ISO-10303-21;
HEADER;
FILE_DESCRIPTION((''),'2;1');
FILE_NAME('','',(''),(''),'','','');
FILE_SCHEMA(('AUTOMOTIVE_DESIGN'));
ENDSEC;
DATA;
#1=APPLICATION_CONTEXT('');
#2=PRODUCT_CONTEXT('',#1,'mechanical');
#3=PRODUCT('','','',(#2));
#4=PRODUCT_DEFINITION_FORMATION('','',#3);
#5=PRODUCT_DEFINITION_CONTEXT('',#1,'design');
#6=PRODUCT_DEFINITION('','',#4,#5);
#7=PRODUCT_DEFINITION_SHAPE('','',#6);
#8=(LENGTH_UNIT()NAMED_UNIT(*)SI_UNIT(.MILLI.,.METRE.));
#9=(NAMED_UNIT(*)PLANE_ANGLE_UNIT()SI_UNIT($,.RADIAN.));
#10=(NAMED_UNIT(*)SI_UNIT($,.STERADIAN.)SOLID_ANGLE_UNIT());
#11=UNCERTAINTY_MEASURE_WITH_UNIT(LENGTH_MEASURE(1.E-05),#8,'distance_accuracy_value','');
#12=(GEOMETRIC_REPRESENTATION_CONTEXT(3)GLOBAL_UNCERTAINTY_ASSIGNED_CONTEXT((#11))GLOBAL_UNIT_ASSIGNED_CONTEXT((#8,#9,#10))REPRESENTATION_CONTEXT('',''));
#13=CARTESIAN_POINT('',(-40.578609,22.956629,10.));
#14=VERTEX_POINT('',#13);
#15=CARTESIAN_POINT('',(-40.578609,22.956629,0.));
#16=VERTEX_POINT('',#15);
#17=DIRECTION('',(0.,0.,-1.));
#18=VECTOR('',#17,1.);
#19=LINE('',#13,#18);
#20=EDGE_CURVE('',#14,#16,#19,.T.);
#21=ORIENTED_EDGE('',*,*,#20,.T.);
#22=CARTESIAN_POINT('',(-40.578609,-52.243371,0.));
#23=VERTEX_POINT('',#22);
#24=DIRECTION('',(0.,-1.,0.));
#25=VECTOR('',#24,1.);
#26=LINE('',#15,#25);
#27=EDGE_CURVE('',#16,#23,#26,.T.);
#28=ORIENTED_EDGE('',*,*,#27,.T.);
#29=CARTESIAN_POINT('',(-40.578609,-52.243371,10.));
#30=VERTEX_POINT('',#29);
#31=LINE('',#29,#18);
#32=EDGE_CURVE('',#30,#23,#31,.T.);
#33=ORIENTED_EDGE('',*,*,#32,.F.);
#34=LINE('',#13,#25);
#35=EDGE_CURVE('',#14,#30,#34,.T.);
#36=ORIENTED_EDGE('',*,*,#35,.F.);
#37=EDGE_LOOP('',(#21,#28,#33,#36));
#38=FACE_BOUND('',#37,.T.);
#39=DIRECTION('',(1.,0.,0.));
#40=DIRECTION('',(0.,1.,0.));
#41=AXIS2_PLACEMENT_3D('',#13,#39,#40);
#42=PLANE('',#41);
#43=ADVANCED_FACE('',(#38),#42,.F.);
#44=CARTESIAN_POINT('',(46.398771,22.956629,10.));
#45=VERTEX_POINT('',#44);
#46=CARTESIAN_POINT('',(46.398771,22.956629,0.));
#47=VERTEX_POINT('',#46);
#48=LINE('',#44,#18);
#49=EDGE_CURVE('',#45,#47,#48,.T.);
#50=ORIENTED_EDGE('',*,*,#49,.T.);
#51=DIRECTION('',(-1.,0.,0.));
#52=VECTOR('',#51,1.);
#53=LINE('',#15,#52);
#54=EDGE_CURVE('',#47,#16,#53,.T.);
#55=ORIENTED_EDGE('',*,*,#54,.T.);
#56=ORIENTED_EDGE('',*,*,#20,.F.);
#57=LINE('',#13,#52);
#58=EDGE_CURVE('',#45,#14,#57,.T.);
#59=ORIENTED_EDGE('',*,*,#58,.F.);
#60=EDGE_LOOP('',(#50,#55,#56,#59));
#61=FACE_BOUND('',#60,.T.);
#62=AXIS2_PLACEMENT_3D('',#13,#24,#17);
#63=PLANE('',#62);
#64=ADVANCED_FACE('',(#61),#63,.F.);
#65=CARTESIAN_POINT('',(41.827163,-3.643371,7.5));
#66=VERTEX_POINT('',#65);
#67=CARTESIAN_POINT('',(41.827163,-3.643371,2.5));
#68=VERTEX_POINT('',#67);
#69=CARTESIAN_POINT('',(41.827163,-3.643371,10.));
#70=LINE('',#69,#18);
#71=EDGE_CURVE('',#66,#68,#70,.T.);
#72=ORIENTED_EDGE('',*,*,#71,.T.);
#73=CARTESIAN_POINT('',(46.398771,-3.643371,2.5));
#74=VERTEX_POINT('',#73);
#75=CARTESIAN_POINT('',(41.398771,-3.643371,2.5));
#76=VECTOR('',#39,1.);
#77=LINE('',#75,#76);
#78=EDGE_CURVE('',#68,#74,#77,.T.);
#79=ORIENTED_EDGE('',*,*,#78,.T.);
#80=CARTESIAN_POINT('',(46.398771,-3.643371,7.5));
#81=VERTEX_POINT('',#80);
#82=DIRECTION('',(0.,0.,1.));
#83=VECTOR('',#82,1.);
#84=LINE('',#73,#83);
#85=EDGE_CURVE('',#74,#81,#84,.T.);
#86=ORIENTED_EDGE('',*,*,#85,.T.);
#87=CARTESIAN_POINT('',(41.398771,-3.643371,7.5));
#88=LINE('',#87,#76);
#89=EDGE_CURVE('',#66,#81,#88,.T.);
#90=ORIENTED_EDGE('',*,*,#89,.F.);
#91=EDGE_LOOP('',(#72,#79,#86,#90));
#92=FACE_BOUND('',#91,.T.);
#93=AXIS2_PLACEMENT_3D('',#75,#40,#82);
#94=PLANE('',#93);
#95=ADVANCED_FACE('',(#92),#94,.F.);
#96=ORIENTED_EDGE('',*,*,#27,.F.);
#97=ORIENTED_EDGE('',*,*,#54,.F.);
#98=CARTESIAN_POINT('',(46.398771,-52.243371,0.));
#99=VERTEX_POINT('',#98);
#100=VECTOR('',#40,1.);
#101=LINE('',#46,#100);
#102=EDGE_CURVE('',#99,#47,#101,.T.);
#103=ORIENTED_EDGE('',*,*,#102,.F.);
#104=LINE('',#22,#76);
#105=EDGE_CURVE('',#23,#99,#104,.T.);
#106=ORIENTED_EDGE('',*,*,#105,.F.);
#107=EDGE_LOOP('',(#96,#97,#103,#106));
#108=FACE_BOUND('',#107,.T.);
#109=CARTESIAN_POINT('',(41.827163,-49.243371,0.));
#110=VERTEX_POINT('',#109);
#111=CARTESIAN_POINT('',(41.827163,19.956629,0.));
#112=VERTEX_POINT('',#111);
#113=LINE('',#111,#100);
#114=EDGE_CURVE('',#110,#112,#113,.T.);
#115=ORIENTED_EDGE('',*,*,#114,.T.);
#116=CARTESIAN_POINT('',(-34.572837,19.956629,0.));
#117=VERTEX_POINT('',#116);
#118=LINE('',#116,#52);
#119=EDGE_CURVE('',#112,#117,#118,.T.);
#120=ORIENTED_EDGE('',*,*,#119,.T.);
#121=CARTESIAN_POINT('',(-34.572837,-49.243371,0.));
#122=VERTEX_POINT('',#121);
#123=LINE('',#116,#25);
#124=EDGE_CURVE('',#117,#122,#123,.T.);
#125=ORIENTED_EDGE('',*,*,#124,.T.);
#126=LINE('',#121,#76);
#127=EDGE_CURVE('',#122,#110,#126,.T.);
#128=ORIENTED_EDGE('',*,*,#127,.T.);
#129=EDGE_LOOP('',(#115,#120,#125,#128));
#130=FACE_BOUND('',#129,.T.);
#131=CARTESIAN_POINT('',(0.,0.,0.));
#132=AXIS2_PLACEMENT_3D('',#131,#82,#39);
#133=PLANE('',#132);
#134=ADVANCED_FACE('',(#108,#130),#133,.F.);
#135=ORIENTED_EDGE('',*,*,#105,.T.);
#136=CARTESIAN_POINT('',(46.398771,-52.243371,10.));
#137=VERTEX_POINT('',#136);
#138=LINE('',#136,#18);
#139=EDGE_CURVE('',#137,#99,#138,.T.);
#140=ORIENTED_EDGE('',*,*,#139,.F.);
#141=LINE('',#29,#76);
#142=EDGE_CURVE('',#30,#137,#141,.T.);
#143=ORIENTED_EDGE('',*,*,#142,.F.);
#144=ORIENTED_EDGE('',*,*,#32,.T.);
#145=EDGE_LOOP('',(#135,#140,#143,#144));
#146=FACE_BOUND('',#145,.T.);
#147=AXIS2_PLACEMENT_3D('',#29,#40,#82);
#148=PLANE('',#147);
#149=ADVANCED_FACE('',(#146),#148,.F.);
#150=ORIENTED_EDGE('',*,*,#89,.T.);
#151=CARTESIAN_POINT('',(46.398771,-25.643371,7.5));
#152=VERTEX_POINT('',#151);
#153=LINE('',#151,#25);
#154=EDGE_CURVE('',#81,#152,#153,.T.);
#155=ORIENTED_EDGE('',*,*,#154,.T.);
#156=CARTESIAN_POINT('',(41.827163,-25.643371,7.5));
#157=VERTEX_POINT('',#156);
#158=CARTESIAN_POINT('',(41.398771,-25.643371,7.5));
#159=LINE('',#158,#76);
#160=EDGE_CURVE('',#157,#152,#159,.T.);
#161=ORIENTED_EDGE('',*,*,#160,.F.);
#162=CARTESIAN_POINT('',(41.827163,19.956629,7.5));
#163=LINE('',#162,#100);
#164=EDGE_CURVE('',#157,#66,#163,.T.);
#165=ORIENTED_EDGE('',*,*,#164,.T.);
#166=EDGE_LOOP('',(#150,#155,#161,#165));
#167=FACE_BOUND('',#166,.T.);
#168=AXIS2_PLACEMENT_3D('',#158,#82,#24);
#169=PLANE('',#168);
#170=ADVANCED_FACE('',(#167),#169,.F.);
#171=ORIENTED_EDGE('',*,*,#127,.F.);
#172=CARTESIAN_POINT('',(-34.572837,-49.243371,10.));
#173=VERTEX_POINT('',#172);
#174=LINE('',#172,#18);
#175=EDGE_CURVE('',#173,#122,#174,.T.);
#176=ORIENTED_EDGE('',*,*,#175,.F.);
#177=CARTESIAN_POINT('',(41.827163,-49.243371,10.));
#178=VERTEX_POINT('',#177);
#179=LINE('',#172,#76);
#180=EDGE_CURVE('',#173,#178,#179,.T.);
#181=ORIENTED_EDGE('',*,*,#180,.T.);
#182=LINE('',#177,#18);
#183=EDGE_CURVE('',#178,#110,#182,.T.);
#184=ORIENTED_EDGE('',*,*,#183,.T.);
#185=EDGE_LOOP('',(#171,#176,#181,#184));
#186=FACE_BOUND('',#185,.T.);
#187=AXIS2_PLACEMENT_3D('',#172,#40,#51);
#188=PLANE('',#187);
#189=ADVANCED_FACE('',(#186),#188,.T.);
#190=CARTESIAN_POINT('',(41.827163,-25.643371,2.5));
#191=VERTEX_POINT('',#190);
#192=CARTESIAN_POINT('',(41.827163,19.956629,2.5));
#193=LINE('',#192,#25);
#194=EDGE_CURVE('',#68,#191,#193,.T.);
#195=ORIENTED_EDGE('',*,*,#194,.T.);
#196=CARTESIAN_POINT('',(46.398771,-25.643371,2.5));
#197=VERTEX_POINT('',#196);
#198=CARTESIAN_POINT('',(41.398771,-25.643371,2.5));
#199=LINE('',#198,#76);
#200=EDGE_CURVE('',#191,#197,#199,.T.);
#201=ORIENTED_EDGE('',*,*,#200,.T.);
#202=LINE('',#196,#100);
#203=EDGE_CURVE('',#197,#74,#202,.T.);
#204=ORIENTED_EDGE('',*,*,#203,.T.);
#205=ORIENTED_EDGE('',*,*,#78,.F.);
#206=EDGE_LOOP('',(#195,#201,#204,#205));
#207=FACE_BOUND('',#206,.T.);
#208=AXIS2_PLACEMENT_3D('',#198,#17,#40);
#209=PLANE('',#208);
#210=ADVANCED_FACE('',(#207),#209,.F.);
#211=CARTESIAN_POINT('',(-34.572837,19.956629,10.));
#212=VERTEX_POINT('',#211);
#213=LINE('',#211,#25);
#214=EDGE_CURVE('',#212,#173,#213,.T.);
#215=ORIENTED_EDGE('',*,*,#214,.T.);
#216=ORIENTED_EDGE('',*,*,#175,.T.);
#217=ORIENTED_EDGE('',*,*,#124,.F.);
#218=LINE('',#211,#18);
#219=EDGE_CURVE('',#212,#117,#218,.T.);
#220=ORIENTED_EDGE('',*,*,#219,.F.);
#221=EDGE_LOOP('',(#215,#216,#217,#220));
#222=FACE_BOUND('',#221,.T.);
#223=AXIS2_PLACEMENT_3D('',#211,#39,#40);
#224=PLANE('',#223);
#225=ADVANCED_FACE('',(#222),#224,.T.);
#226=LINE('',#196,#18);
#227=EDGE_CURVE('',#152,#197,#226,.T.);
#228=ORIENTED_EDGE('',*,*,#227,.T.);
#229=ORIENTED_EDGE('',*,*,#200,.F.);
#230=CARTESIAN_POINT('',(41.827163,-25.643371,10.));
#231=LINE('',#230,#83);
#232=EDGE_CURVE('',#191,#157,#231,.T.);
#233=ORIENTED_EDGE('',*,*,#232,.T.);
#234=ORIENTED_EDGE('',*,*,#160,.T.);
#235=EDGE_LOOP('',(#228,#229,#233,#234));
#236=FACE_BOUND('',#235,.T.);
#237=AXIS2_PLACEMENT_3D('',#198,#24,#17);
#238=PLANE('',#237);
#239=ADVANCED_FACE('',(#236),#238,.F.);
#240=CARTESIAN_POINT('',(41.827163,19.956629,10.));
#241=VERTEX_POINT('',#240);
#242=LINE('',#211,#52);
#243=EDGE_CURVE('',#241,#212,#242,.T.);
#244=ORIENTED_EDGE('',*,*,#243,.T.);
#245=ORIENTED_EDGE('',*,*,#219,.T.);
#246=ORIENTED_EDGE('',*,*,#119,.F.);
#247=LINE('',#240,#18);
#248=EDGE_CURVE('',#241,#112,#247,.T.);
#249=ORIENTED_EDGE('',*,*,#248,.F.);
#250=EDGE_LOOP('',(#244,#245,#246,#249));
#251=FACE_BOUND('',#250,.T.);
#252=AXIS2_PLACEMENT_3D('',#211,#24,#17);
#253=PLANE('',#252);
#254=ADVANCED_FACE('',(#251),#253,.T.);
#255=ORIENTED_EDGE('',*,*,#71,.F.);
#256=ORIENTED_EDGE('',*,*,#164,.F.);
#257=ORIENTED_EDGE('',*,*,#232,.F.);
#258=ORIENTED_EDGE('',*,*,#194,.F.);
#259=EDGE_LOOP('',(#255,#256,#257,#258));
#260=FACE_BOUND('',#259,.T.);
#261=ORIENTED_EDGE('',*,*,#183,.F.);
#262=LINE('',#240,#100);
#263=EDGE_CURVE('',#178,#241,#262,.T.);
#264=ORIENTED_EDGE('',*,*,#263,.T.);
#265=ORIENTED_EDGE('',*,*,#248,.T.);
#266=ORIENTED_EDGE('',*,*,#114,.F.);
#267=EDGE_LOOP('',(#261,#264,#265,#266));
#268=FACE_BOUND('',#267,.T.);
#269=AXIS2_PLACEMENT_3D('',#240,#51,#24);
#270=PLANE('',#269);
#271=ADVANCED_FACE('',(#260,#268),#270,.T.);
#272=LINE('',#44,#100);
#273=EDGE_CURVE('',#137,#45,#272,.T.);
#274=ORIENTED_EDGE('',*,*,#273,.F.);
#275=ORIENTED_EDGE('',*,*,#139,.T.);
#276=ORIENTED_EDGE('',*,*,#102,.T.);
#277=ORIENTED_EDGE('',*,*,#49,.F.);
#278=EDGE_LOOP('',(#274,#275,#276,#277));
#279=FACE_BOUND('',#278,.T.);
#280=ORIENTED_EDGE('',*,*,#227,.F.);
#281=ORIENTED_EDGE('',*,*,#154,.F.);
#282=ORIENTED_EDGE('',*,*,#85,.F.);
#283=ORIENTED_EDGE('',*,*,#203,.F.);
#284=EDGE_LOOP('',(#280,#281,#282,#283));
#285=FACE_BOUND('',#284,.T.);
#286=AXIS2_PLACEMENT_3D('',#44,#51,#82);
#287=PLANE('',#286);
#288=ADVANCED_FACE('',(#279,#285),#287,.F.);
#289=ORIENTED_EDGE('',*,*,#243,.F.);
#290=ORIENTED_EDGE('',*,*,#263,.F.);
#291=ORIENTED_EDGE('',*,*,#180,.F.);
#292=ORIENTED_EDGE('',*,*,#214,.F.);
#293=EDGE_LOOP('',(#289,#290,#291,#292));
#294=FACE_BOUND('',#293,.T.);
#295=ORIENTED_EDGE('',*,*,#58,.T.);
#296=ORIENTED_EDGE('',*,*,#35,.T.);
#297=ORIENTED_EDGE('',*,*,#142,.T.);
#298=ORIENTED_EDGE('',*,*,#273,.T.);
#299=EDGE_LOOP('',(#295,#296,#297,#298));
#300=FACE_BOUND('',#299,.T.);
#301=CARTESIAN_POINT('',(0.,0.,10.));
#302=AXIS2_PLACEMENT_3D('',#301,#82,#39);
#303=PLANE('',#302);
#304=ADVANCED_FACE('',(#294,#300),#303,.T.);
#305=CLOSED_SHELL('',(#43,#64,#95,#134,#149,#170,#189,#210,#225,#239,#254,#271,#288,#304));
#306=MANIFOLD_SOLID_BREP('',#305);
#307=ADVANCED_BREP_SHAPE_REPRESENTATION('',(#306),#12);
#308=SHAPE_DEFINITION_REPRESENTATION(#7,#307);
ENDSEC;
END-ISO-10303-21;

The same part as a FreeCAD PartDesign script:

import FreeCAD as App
import Part
import Sketcher
Q = App.Units.Quantity

doc = App.newDocument("Part")
body = doc.addObject("PartDesign::Body", "Body")

# Sketch on XY plane
sketch1 = body.newObject("Sketcher::SketchObject", "Sketch")
sketch1.AttachmentSupport = (doc.getObject("XY_Plane"), [""])
sketch1.MapMode = "FlatFace"
sketch1.addGeometry([
    Part.LineSegment(App.Vector(-41, 23, 0), App.Vector(-41, -52, 0)),  # 0
    Part.LineSegment(App.Vector(-41, -52, 0), App.Vector(46, -52, 0)),  # 1
    Part.LineSegment(App.Vector(46, -52, 0), App.Vector(46, 23, 0)),  # 2
    Part.LineSegment(App.Vector(46, 23, 0), App.Vector(-41, 23, 0)),  # 3
    Part.LineSegment(App.Vector(42, -49, 0), App.Vector(-35, -49, 0)),  # 4
    Part.LineSegment(App.Vector(-35, -49, 0), App.Vector(-35, 20, 0)),  # 5
    Part.LineSegment(App.Vector(-35, 20, 0), App.Vector(42, 20, 0)),  # 6
    Part.LineSegment(App.Vector(42, 20, 0), App.Vector(42, -49, 0)),  # 7
], False)
sketch1.addConstraint([
    Sketcher.Constraint("Coincident", 0, 2, 1, 1),
    Sketcher.Constraint("Coincident", 1, 2, 2, 1),
    Sketcher.Constraint("Coincident", 2, 2, 3, 1),
    Sketcher.Constraint("Coincident", 3, 2, 0, 1),
    Sketcher.Constraint("Coincident", 4, 2, 5, 1),
    Sketcher.Constraint("Coincident", 5, 2, 6, 1),
    Sketcher.Constraint("Coincident", 6, 2, 7, 1),
    Sketcher.Constraint("Coincident", 7, 2, 4, 1),
    Sketcher.Constraint("Vertical", 0),
    Sketcher.Constraint("Horizontal", 1),
    Sketcher.Constraint("Vertical", 2),
    Sketcher.Constraint("Horizontal", 3),
    Sketcher.Constraint("Horizontal", 4),
    Sketcher.Constraint("Vertical", 5),
    Sketcher.Constraint("Horizontal", 6),
    Sketcher.Constraint("Vertical", 7),
    Sketcher.Constraint("DistanceX", 4, 2, 4, 1, Q("76.4 mm")),
    Sketcher.Constraint("DistanceY", 0, 2, 0, 1, Q("75.2 mm")),
    Sketcher.Constraint("DistanceY", 5, 1, 5, 2, Q("69.2 mm")),
    Sketcher.Constraint("DistanceY", 0, 2, 4, 2, Q("3 mm")),
    Sketcher.Constraint("DistanceX", 1, 1, 1, 2, Q("86.97738 mm")),
    Sketcher.Constraint("DistanceX", 0, 2, -1, 1, Q("40.578609 mm")),
    Sketcher.Constraint("DistanceY", 0, 2, -1, 1, Q("52.243371 mm")),
    Sketcher.Constraint("DistanceX", 4, 2, -1, 1, Q("34.572837 mm")),
])
pad1 = body.newObject("PartDesign::Pad", "Pad")
pad1.Profile = sketch1
pad1.Length = 10

# Sketch on YZ plane
sketch2 = body.newObject("Sketcher::SketchObject", "Sketch001")
sketch2.AttachmentSupport = (doc.getObject("YZ_Plane"), [""])
sketch2.MapMode = "FlatFace"
sketch2.AttachmentOffset = App.Placement(App.Vector(0, 0, 46.398771), App.Rotation())
sketch2.addGeometry([
    Part.LineSegment(App.Vector(-4, 8, 0), App.Vector(-26, 8, 0)),
    Part.LineSegment(App.Vector(-26, 8, 0), App.Vector(-26, 2, 0)),
    Part.LineSegment(App.Vector(-26, 2, 0), App.Vector(-4, 2, 0)),
    Part.LineSegment(App.Vector(-4, 2, 0), App.Vector(-4, 8, 0)),
], False)
sketch2.addConstraint([
    Sketcher.Constraint("Coincident", 0, 2, 1, 1),
    Sketcher.Constraint("Coincident", 1, 2, 2, 1),
    Sketcher.Constraint("Coincident", 2, 2, 3, 1),
    Sketcher.Constraint("Coincident", 3, 2, 0, 1),
    Sketcher.Constraint("Horizontal", 0),
    Sketcher.Constraint("Vertical", 1),
    Sketcher.Constraint("Horizontal", 2),
    Sketcher.Constraint("Vertical", 3),
    Sketcher.Constraint("DistanceX", 0, 2, 0, 1, Q("22 mm")),
    Sketcher.Constraint("DistanceY", 1, 2, 1, 1, Q("5 mm")),
    Sketcher.Constraint("DistanceY", -1, 1, 0, 2, Q("7.5 mm")),
    Sketcher.Constraint("DistanceX", 0, 2, -1, 1, Q("25.643371 mm")),
])
pocket1 = body.newObject("PartDesign::Pocket", "Pocket")
pocket1.Profile = sketch2
pocket1.Length = 5

doc.recompute()
